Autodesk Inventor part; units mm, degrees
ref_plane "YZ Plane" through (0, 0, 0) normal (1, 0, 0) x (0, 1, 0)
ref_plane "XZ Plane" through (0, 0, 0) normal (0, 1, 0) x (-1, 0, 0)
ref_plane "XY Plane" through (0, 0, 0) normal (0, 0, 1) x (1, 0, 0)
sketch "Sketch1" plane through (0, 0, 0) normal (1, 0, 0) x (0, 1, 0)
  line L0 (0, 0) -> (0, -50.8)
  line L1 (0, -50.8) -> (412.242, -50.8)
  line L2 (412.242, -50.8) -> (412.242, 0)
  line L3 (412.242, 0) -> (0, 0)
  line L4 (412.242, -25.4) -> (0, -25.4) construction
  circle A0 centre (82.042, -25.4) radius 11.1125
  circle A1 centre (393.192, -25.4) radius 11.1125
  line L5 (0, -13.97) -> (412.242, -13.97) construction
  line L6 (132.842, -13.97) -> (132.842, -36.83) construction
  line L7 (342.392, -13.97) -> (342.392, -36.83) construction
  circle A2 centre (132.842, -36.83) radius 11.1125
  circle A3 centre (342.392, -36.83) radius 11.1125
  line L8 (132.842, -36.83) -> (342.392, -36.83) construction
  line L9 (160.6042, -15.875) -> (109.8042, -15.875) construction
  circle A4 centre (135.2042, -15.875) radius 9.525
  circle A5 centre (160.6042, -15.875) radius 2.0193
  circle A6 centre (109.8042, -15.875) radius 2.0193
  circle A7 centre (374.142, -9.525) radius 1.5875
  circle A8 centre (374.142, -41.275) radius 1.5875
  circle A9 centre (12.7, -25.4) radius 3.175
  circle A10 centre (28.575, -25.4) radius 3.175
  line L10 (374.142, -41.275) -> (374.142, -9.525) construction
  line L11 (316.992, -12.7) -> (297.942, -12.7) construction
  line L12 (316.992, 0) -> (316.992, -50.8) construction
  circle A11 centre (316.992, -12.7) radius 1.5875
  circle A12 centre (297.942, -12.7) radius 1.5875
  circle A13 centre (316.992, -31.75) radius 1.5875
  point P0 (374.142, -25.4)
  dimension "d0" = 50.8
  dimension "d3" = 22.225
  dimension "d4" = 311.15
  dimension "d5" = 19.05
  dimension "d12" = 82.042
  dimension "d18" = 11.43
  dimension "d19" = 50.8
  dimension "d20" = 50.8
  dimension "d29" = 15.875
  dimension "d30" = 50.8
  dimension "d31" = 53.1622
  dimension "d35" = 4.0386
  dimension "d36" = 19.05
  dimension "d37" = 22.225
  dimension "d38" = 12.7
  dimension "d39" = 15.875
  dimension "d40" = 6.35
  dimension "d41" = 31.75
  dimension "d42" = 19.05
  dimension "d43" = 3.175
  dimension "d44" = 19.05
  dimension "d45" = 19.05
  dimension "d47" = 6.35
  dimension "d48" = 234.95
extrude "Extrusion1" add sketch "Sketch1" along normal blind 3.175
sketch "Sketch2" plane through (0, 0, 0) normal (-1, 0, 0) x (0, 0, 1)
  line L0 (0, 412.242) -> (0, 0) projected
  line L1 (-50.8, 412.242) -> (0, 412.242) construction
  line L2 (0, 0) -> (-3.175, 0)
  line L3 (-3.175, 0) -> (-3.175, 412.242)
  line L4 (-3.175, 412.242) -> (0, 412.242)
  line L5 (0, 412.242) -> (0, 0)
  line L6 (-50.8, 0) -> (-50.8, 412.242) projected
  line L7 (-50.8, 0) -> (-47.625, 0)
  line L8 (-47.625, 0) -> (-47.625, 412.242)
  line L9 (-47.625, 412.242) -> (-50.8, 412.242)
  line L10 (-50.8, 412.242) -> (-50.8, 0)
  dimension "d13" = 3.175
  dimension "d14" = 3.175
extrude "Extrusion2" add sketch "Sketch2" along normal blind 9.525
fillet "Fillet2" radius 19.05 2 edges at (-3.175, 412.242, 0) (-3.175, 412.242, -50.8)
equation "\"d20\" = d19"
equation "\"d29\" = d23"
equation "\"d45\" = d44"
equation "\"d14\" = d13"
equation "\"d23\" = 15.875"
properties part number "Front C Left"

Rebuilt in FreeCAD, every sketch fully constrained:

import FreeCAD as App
import Part
import Sketcher
from FreeCAD import Vector
Q = App.Units.Quantity


def edges_at(feature, points):
    """Names of the edges that pass closest to the given points."""
    edges = feature.Shape.Edges
    near = lambda p: min(range(len(edges)), key=lambda i: edges[i].distToShape(Part.Vertex(*p))[0])
    return sorted({f"Edge{near(p) + 1}" for p in points})

doc = App.newDocument("Part")
body = doc.addObject("PartDesign::Body", "Body")

# Sketch on YZ plane
sketch1 = body.newObject("Sketcher::SketchObject", "Sketch")
sketch1.AttachmentSupport = (doc.getObject("YZ_Plane"), [""])
sketch1.MapMode = "FlatFace"
sketch1.addGeometry([
    Part.LineSegment(Vector(412.2, 0, 0), Vector(0, 0, 0)),  # 0
    Part.LineSegment(Vector(0, 0, 0), Vector(0, -50.8, 0)),  # 1
    Part.LineSegment(Vector(0, -50.8, 0), Vector(412.2, -50.8, 0)),  # 2
    Part.LineSegment(Vector(412.2, -50.8, 0), Vector(412.2, 0, 0)),  # 3
    Part.Circle(Vector(12.7, -25.4, 0), Vector(0, 0, 1), 3.2),  # 4
    Part.Circle(Vector(28.6, -25.4, 0), Vector(0, 0, 1), 3.2),  # 5
    Part.Circle(Vector(82, -25.4, 0), Vector(0, 0, 1), 11.1),  # 6
    Part.Circle(Vector(132.8, -36.8, 0), Vector(0, 0, 1), 11.1),  # 7
    Part.Circle(Vector(374.1, -41.3, 0), Vector(0, 0, 1), 1.6),  # 8
    Part.Circle(Vector(342.4, -36.8, 0), Vector(0, 0, 1), 11.1),  # 9
    Part.Circle(Vector(317, -31.8, 0), Vector(0, 0, 1), 1.6),  # 10
    Part.Circle(Vector(393.2, -25.4, 0), Vector(0, 0, 1), 11.1),  # 11
    Part.Circle(Vector(109.8, -15.9, 0), Vector(0, 0, 1), 2),  # 12
    Part.Circle(Vector(135.2, -15.9, 0), Vector(0, 0, 1), 9.5),  # 13
    Part.Circle(Vector(160.6, -15.9, 0), Vector(0, 0, 1), 2),  # 14
    Part.Circle(Vector(297.9, -12.7, 0), Vector(0, 0, 1), 1.6),  # 15
    Part.Circle(Vector(317, -12.7, 0), Vector(0, 0, 1), 1.6),  # 16
    Part.Circle(Vector(374.1, -9.5, 0), Vector(0, 0, 1), 1.6),  # 17
], False)
sketch1.addConstraint([
    Sketcher.Constraint("Coincident", 0, 2, 1, 1),
    Sketcher.Constraint("Coincident", 1, 2, 2, 1),
    Sketcher.Constraint("Coincident", 2, 2, 3, 1),
    Sketcher.Constraint("Coincident", 3, 2, 0, 1),
    Sketcher.Constraint("Horizontal", 0),
    Sketcher.Constraint("Vertical", 1),
    Sketcher.Constraint("Horizontal", 2),
    Sketcher.Constraint("Vertical", 3),
    Sketcher.Constraint("Coincident", 0, 2, -1, 1),
    Sketcher.Constraint("Equal", 4, 5),
    Sketcher.Constraint("Equal", 6, 7),
    Sketcher.Constraint("Equal", 7, 9),
    Sketcher.Constraint("Equal", 8, 10),
    Sketcher.Constraint("Equal", 9, 11),
    Sketcher.Constraint("Equal", 12, 14),
    Sketcher.Constraint("Equal", 10, 15),
    Sketcher.Constraint("Equal", 15, 16),
    Sketcher.Constraint("Equal", 16, 17),
    Sketcher.Constraint("Horizontal", 4, 3, 5, 3),
    Sketcher.Constraint("Horizontal", 5, 3, 6, 3),
    Sketcher.Constraint("Horizontal", 7, 3, 9, 3),
    Sketcher.Constraint("Horizontal", 6, 3, 11, 3),
    Sketcher.Constraint("Horizontal", 12, 3, 13, 3),
    Sketcher.Constraint("Horizontal", 13, 3, 14, 3),
    Sketcher.Constraint("Horizontal", 15, 3, 16, 3),
    Sketcher.Constraint("Vertical", 10, 3, 16, 3),
    Sketcher.Constraint("Vertical", 8, 3, 17, 3),
    Sketcher.Constraint("Diameter", 4, Q("0.25 in")),
    Sketcher.Constraint("Diameter", 13, Q("0.75 in")),
    Sketcher.Constraint("DistanceY", 1, 2, 1, 1, Q("2 in")),
    Sketcher.Constraint("Diameter", 6, Q("0.875 in")),
    Sketcher.Constraint("Diameter", 8, Q("0.125 in")),
    Sketcher.Constraint("Diameter", 12, Q("0.159 in")),
    Sketcher.Constraint("DistanceX", 6, 3, 7, 3, Q("2 in")),
    Sketcher.Constraint("DistanceX", 9, 3, 11, 3, Q("2 in")),
    Sketcher.Constraint("DistanceX", 12, 3, 14, 3, Q("2 in")),
    Sketcher.Constraint("DistanceX", -1, 1, 4, 3, Q("0.5 in")),
    Sketcher.Constraint("DistanceY", 15, 3, -1, 1, Q("0.5 in")),
    Sketcher.Constraint("DistanceY", 11, 3, 15, 3, Q("0.5 in")),
    Sketcher.Constraint("DistanceX", -1, 1, 6, 3, Q("3.23 in")),
    Sketcher.Constraint("DistanceY", 10, 3, -1, 1, Q("1.25 in")),
    Sketcher.Constraint("DistanceY", 7, 3, 6, 3, Q("0.45 in")),
    Sketcher.Constraint("DistanceX", 9, 3, 8, 3, Q("1.25 in")),
    Sketcher.Constraint("DistanceX", 6, 3, 10, 3, Q("9.25 in")),
    Sketcher.Constraint("DistanceX", 6, 3, 11, 3, Q("12.25 in")),
    Sketcher.Constraint("DistanceX", 15, 3, 10, 3, Q("0.75 in")),
    Sketcher.Constraint("DistanceY", 8, 3, 17, 3, Q("1.25 in")),
    Sketcher.Constraint("DistanceX", 11, 3, 2, 2, Q("0.75 in")),
    Sketcher.Constraint("DistanceY", 12, 3, -1, 1, Q("0.625 in")),
    Sketcher.Constraint("DistanceX", 4, 3, 5, 3, Q("0.625 in")),
    Sketcher.Constraint("DistanceY", 8, 3, 6, 3, Q("0.625 in")),
    Sketcher.Constraint("DistanceX", 12, 3, 13, 3, Q("1 in")),
    Sketcher.Constraint("DistanceX", 6, 3, 13, 3, Q("2.093 in")),
])
pad1 = body.newObject("PartDesign::Pad", "Pad")
pad1.Profile = sketch1
pad1.Length = Q("0.125 in")

# Sketch on YZ plane
sketch2 = body.newObject("Sketcher::SketchObject", "Sketch001")
sketch2.AttachmentSupport = (doc.getObject("YZ_Plane"), [""])
sketch2.MapMode = "FlatFace"
sketch2.addGeometry([
    Part.LineSegment(Vector(0, 0, 0), Vector(412.2, 0, 0)),  # 0
    Part.LineSegment(Vector(412.2, 0, 0), Vector(412.2, -3.2, 0)),  # 1
    Part.LineSegment(Vector(412.2, -3.2, 0), Vector(0, -3.2, 0)),  # 2
    Part.LineSegment(Vector(0, -3.2, 0), Vector(0, 0, 0)),  # 3
    Part.LineSegment(Vector(412.2, -50.8, 0), Vector(0, -50.8, 0)),  # 4
    Part.LineSegment(Vector(0, -50.8, 0), Vector(0, -47.6, 0)),  # 5
    Part.LineSegment(Vector(0, -47.6, 0), Vector(412.2, -47.6, 0)),  # 6
    Part.LineSegment(Vector(412.2, -47.6, 0), Vector(412.2, -50.8, 0)),  # 7
], False)
sketch2.addConstraint([
    Sketcher.Constraint("Coincident", 0, 2, 1, 1),
    Sketcher.Constraint("Coincident", 1, 2, 2, 1),
    Sketcher.Constraint("Coincident", 2, 2, 3, 1),
    Sketcher.Constraint("Coincident", 3, 2, 0, 1),
    Sketcher.Constraint("Coincident", 4, 2, 5, 1),
    Sketcher.Constraint("Coincident", 5, 2, 6, 1),
    Sketcher.Constraint("Coincident", 6, 2, 7, 1),
    Sketcher.Constraint("Coincident", 7, 2, 4, 1),
    Sketcher.Constraint("Horizontal", 0),
    Sketcher.Constraint("Vertical", 1),
    Sketcher.Constraint("Horizontal", 2),
    Sketcher.Constraint("Vertical", 3),
    Sketcher.Constraint("Horizontal", 4),
    Sketcher.Constraint("Vertical", 5),
    Sketcher.Constraint("Horizontal", 6),
    Sketcher.Constraint("Vertical", 7),
    Sketcher.Constraint("Coincident", 3, 2, -1, 1),
    Sketcher.Constraint("PointOnObject", 4, 2, -2),
    Sketcher.Constraint("Vertical", 1, 2, 6, 2),
    Sketcher.Constraint("Equal", 3, 5),
    Sketcher.Constraint("DistanceY", 1, 2, 1, 1, Q("0.125 in")),
    Sketcher.Constraint("DistanceY", 4, 2, -1, 1, Q("2 in")),
    Sketcher.Constraint("DistanceX", 0, 1, 0, 2, Q("16.23 in")),
])
pad2 = body.newObject("PartDesign::Pad", "Pad001")
pad2.Profile = sketch2
pad2.Length = Q("0.375 in")
pad2.Reversed = True
doc.recompute()

fillet = body.newObject("PartDesign::Fillet", "Fillet")
fillet.Base = (pad2, edges_at(pad2, [(-3.175, 412.242, 0), (-3.175, 412.242, -50.8)]))
fillet.Radius = Q("0.75 in")

doc.recompute()
